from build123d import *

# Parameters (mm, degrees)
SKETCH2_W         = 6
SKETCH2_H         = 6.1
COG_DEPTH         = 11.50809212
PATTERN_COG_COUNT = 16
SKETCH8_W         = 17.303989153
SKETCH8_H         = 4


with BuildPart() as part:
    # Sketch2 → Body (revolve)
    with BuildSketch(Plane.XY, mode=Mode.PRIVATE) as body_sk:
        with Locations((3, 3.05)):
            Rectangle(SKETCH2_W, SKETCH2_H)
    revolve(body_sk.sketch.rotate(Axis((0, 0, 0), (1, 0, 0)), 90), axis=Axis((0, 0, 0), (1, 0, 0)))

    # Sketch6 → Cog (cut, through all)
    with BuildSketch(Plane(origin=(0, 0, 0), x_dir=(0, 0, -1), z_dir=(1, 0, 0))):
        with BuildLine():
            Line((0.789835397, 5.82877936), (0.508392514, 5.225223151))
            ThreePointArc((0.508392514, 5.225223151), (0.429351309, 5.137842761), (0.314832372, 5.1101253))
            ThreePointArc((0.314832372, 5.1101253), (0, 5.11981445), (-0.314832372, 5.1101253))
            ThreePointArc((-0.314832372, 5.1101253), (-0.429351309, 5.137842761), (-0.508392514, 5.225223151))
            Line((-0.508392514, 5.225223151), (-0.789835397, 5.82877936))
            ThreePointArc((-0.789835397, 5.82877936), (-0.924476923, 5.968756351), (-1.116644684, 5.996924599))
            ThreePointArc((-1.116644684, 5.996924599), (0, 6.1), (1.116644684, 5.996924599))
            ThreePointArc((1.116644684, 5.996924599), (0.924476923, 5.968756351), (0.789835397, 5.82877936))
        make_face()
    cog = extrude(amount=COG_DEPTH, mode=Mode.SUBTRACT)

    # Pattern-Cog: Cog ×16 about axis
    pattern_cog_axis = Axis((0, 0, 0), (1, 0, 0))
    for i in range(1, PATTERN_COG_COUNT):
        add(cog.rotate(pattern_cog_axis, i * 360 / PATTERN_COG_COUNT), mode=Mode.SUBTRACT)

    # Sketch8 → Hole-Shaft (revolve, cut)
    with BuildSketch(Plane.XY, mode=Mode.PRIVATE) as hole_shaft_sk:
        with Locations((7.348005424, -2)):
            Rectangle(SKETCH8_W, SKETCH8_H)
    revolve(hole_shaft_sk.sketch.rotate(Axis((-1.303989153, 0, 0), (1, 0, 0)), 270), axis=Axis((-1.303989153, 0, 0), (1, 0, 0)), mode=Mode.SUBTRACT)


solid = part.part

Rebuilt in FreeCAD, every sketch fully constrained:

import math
import FreeCAD as App
import Part
import Sketcher
Q = App.Units.Quantity

doc = App.newDocument("Part")
body = doc.addObject("PartDesign::Body", "Body")

sketch1 = body.newObject("Sketcher::SketchObject", "Sketch")
sketch1.AttachmentSupport = (doc.getObject("XY_Plane"), [""])
sketch1.MapMode = "FlatFace"
sketch1.addGeometry([
    Part.LineSegment(App.Vector(0, 6, 0), App.Vector(0, 0, 0)),
    Part.LineSegment(App.Vector(0, 0, 0), App.Vector(6, 0, 0)),
    Part.LineSegment(App.Vector(6, 0, 0), App.Vector(6, 6, 0)),
    Part.LineSegment(App.Vector(6, 6, 0), App.Vector(0, 6, 0)),
], False)
sketch1.addConstraint([
    Sketcher.Constraint("Coincident", 0, 2, 1, 1),
    Sketcher.Constraint("Coincident", 1, 2, 2, 1),
    Sketcher.Constraint("Coincident", 2, 2, 3, 1),
    Sketcher.Constraint("Coincident", 3, 2, 0, 1),
    Sketcher.Constraint("Vertical", 0),
    Sketcher.Constraint("Horizontal", 1),
    Sketcher.Constraint("Vertical", 2),
    Sketcher.Constraint("Horizontal", 3),
    Sketcher.Constraint("Coincident", 0, 2, -1, 1),
    Sketcher.Constraint("DistanceX", 1, 1, 1, 2, Q("6 mm")),
    Sketcher.Constraint("DistanceY", 0, 2, 0, 1, Q("6.1 mm")),
])
revolution = body.newObject("PartDesign::Revolution", "Revolution")
revolution.Profile = sketch1
revolution.ReferenceAxis = (sketch1, ["H_Axis"])
revolution.Angle = 360

sketch2 = body.newObject("Sketcher::SketchObject", "Sketch001")
sketch2.AttachmentSupport = (doc.getObject("YZ_Plane"), [""])
sketch2.MapMode = "FlatFace"
sketch2.addGeometry([
    Part.LineSegment(App.Vector(5.23, -0.51, 0), App.Vector(5.83, -0.79, 0)),
    Part.ArcOfCircle(Part.Circle(App.Vector(5.7, -1.06, 0), App.Vector(0, 0, 1), 0.3), math.radians(-11), math.radians(65)),
    Part.ArcOfCircle(Part.Circle(App.Vector(0, 0, 0), App.Vector(0, 0, 1), 6.1), math.radians(-11), math.radians(11)),
    Part.ArcOfCircle(Part.Circle(App.Vector(5.7, 1.06, 0), App.Vector(0, 0, 1), 0.3), math.radians(-65), math.radians(11)),
    Part.LineSegment(App.Vector(5.83, 0.79, 0), App.Vector(5.23, 0.51, 0)),
    Part.ArcOfCircle(Part.Circle(App.Vector(5.31, 0.33, 0), App.Vector(0, 0, 1), 0.2), math.radians(115), math.radians(184)),
    Part.ArcOfCircle(Part.Circle(App.Vector(0, 0, 0), App.Vector(0, 0, 1), 5.12), math.radians(-3.53), math.radians(3.53)),
    Part.ArcOfCircle(Part.Circle(App.Vector(5.31, -0.33, 0), App.Vector(0, 0, 1), 0.2), math.radians(176), math.radians(245)),
], False)
sketch2.addConstraint([
    Sketcher.Constraint("Tangent", 0, 2, 1, 2),
    Sketcher.Constraint("Tangent", 1, 1, 2, 1),
    Sketcher.Constraint("Tangent", 2, 2, 3, 2),
    Sketcher.Constraint("Tangent", 3, 1, 4, 1),
    Sketcher.Constraint("Tangent", 4, 2, 5, 1),
    Sketcher.Constraint("Tangent", 5, 2, 6, 2),
    Sketcher.Constraint("Tangent", 6, 1, 7, 1),
    Sketcher.Constraint("Tangent", 7, 2, 0, 1),
    Sketcher.Constraint("Coincident", 2, 3, -1, 1),
    Sketcher.Constraint("Coincident", 6, 3, -1, 1),
    Sketcher.Constraint("Equal", 1, 3),
    Sketcher.Constraint("Equal", 5, 7),
    Sketcher.Constraint("Symmetric", 0, 2, 3, 1, -1),
    Sketcher.Constraint("Radius", 1, Q("0.3 mm")),
    Sketcher.Constraint("Radius", 2, Q("6.1 mm")),
    Sketcher.Constraint("Radius", 5, Q("0.2 mm")),
    Sketcher.Constraint("Angle", 0, Q("-25 deg")),
    Sketcher.Constraint("Radius", 6, Q("5.119815 mm")),
    Sketcher.Constraint("DistanceX", 4, 2, 2, 2, Q("0.771701 mm")),
])
pocket1 = body.newObject("PartDesign::Pocket", "Pocket")
pocket1.Profile = sketch2
pocket1.Type = "ThroughAll"
pocket1.Reversed = True
doc.recompute()

polarpattern = body.newObject("PartDesign::PolarPattern", "PolarPattern")
polarpattern.Originals = [pocket1]
polarpattern.Axis = (doc.getObject("X_Axis"), [""])
polarpattern.Angle = 360
polarpattern.Occurrences = 16
body.Tip = polarpattern

sketch3 = body.newObject("Sketcher::SketchObject", "Sketch002")
sketch3.AttachmentSupport = (doc.getObject("XY_Plane"), [""])
sketch3.MapMode = "FlatFace"
sketch3.addGeometry([
    Part.LineSegment(App.Vector(-1.3, 0, 0), App.Vector(-1.3, -4, 0)),
    Part.LineSegment(App.Vector(-1.3, -4, 0), App.Vector(16, -4, 0)),
    Part.LineSegment(App.Vector(16, -4, 0), App.Vector(16, 0, 0)),
    Part.LineSegment(App.Vector(16, 0, 0), App.Vector(-1.3, 0, 0)),
], False)
sketch3.addConstraint([
    Sketcher.Constraint("Coincident", 0, 2, 1, 1),
    Sketcher.Constraint("Coincident", 1, 2, 2, 1),
    Sketcher.Constraint("Coincident", 2, 2, 3, 1),
    Sketcher.Constraint("Coincident", 3, 2, 0, 1),
    Sketcher.Constraint("Vertical", 0),
    Sketcher.Constraint("Horizontal", 1),
    Sketcher.Constraint("Vertical", 2),
    Sketcher.Constraint("Horizontal", 3),
    Sketcher.Constraint("PointOnObject", 2, 2, -1),
    Sketcher.Constraint("DistanceY", 0, 2, 0, 1, Q("4 mm")),
    Sketcher.Constraint("DistanceX", -1, 1, 1, 2, Q("16 mm")),
    Sketcher.Constraint("DistanceX", 1, 1, 1, 2, Q("17.303989 mm")),
])
groove = body.newObject("PartDesign::Groove", "Groove")
groove.Profile = sketch3
groove.ReferenceAxis = (sketch3, ["H_Axis"])
groove.Angle = 360

doc.recompute()
